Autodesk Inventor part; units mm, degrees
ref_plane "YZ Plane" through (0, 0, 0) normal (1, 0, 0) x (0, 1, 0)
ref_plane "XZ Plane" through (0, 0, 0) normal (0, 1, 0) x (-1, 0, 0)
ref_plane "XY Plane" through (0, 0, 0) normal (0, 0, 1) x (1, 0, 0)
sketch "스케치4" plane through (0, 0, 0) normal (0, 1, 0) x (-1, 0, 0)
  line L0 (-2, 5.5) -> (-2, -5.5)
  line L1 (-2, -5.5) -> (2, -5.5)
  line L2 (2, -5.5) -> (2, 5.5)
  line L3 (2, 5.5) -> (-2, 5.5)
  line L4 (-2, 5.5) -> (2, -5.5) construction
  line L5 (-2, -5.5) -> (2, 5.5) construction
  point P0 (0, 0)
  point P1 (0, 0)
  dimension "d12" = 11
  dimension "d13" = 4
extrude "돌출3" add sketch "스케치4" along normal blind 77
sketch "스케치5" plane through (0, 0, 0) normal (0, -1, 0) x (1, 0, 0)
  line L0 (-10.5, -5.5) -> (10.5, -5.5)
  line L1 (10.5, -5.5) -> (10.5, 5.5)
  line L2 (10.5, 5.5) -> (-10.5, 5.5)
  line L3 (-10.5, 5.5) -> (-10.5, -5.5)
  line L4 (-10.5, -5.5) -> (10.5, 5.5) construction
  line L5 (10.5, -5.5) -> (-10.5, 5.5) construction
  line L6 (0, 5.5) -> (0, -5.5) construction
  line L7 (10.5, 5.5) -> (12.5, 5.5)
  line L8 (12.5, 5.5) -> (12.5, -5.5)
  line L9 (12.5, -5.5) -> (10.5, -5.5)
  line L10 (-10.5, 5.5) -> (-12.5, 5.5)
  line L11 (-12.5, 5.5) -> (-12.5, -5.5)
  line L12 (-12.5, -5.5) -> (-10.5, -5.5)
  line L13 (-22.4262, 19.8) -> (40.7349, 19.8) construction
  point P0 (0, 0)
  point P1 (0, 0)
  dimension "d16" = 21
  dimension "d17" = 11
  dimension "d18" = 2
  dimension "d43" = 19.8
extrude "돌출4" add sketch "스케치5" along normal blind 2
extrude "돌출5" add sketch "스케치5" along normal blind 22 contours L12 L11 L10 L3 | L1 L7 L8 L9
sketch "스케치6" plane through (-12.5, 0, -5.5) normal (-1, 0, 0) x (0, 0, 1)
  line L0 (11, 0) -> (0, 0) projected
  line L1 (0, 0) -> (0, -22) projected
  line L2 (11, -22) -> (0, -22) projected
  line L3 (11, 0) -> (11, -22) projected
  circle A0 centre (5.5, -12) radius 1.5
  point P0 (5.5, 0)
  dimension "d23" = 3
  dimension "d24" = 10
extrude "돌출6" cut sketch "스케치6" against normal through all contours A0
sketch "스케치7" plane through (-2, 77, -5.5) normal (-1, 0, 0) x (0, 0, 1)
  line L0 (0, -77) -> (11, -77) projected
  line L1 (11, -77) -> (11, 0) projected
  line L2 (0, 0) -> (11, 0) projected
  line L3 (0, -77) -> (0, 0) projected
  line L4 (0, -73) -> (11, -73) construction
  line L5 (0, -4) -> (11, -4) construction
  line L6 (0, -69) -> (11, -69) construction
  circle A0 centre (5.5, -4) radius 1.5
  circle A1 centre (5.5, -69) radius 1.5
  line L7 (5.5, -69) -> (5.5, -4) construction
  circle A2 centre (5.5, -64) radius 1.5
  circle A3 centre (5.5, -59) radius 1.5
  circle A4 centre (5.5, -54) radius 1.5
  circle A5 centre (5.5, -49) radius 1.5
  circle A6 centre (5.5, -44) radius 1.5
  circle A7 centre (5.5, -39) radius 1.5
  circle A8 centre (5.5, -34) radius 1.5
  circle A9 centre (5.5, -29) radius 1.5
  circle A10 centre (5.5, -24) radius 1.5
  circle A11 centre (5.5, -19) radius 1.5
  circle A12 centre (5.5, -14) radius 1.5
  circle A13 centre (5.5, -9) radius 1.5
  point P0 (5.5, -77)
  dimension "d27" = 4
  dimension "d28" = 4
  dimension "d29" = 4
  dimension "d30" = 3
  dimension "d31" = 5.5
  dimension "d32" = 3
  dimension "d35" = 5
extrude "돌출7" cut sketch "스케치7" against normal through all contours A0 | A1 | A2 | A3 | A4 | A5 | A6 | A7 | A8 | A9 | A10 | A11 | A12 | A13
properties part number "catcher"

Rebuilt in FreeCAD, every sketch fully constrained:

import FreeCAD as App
import Part
import Sketcher
from FreeCAD import Vector


def add_polygon(sketch, points):
    """Adds a closed chain of lines whose ends are joined by coincident constraints."""
    first, n = sketch.GeometryCount, len(points)
    for a, b in zip(points, points[1:] + points[:1]):
        sketch.addGeometry(Part.LineSegment(App.Vector(*a, 0), App.Vector(*b, 0)), False)
    for i in range(n):
        sketch.addConstraint(Sketcher.Constraint("Coincident", first + i, 2, first + (i + 1) % n, 1))

doc = App.newDocument("Part")
body = doc.addObject("PartDesign::Body", "Body")

# Sketch on XZ plane
sketch1 = body.newObject("Sketcher::SketchObject", "Sketch")
sketch1.AttachmentSupport = (doc.getObject("XZ_Plane"), [""])
sketch1.MapMode = "FlatFace"
add_polygon(sketch1, [(-2, 5.5), (2, 5.5), (2, -5.5), (-2, -5.5)])  # lines 0-3
sketch1.addConstraint([
    Sketcher.Constraint("Horizontal", 0),
    Sketcher.Constraint("Vertical", 1),
    Sketcher.Constraint("Horizontal", 2),
    Sketcher.Constraint("Vertical", 3),
    Sketcher.Constraint("Symmetric", 0, 2, 2, 2, -1, 1),
    Sketcher.Constraint("DistanceX", 0, 1, 0, 2, 4.0),
    Sketcher.Constraint("DistanceY", 1, 2, 1, 1, 11.0),
])
pad1 = body.newObject("PartDesign::Pad", "Pad")
pad1.Profile = sketch1
pad1.Length = 77
pad1.Reversed = True

# Sketch on XZ plane
sketch2 = body.newObject("Sketcher::SketchObject", "Sketch001")
sketch2.AttachmentSupport = (doc.getObject("XZ_Plane"), [""])
sketch2.MapMode = "FlatFace"
add_polygon(sketch2, [(-12, 6), (-12, -6), (12, -6), (12, 6)])  # lines 0-3
sketch2.addConstraint([
    Sketcher.Constraint("Vertical", 0),
    Sketcher.Constraint("Horizontal", 1),
    Sketcher.Constraint("Vertical", 2),
    Sketcher.Constraint("Horizontal", 3),
    Sketcher.Constraint("Symmetric", 0, 2, 2, 2, -1, 1),
    Sketcher.Constraint("DistanceY", 0, 2, 0, 1, 11.0),
    Sketcher.Constraint("DistanceX", 1, 1, 1, 2, 25.0),
])
pad2 = body.newObject("PartDesign::Pad", "Pad001")
pad2.Profile = sketch2
pad2.Length = 2

# Sketch on XZ plane
sketch3 = body.newObject("Sketcher::SketchObject", "Sketch002")
sketch3.AttachmentSupport = (doc.getObject("XZ_Plane"), [""])
sketch3.MapMode = "FlatFace"
add_polygon(sketch3, [(-12.5, -5.5), (-10.5, -5.5), (-10.5, 5.5), (-12.5, 5.5)])  # lines 0-3
add_polygon(sketch3, [(10.5, 5.5), (10.5, -5.5), (12.5, -5.5), (12.5, 5.5)])  # lines 4-7
sketch3.addConstraint([
    Sketcher.Constraint("Horizontal", 0),
    Sketcher.Constraint("Vertical", 1),
    Sketcher.Constraint("Horizontal", 2),
    Sketcher.Constraint("Vertical", 3),
    Sketcher.Constraint("Vertical", 4),
    Sketcher.Constraint("Horizontal", 5),
    Sketcher.Constraint("Vertical", 6),
    Sketcher.Constraint("Horizontal", 7),
    Sketcher.Constraint("Symmetric", 1, 2, 4, 2, -1, 1),
    Sketcher.Constraint("Symmetric", 3, 2, 6, 2, -1, 1),
    Sketcher.Constraint("Horizontal", 3, 2, 4, 2),
    Sketcher.Constraint("DistanceX", 0, 1, 0, 2, 2.0),
    Sketcher.Constraint("DistanceY", 1, 1, 1, 2, 11.0),
    Sketcher.Constraint("DistanceX", 0, 2, 4, 2, 21.0),
])
pad3 = body.newObject("PartDesign::Pad", "Pad002")
pad3.Profile = sketch3
pad3.Length = 22

# Sketch on YZ plane
sketch4 = body.newObject("Sketcher::SketchObject", "Sketch003")
sketch4.AttachmentSupport = (doc.getObject("YZ_Plane"), [""])
sketch4.MapMode = "FlatFace"
sketch4.AttachmentOffset = App.Placement(Vector(0, 0, -12.5), App.Rotation())
sketch4.addGeometry(Part.Circle(Vector(-12, 0, 0), Vector(0, 0, 1), 1.5), False)
sketch4.addConstraint([
    Sketcher.Constraint("PointOnObject", 0, 3, -1),
    Sketcher.Constraint("Diameter", 0, 3.0),
    Sketcher.Constraint("DistanceX", 0, 3, -1, 1, 12.0),
])
pocket1 = body.newObject("PartDesign::Pocket", "Pocket")
pocket1.Profile = sketch4
pocket1.Type = "ThroughAll"
pocket1.Reversed = True

# Sketch on YZ plane
sketch5 = body.newObject("Sketcher::SketchObject", "Sketch004")
sketch5.AttachmentSupport = (doc.getObject("YZ_Plane"), [""])
sketch5.MapMode = "FlatFace"
sketch5.AttachmentOffset = App.Placement(Vector(0, 0, -2), App.Rotation())
sketch5.addGeometry([
    Part.Circle(Vector(73, 0, 0), Vector(0, 0, 1), 1.5),  # 0
    Part.Circle(Vector(8, 0, 0), Vector(0, 0, 1), 1.5),  # 1
    Part.Circle(Vector(13, 0, 0), Vector(0, 0, 1), 1.5),  # 2
    Part.Circle(Vector(18, 0, 0), Vector(0, 0, 1), 1.5),  # 3
    Part.Circle(Vector(23, 0, 0), Vector(0, 0, 1), 1.5),  # 4
    Part.Circle(Vector(28, 0, 0), Vector(0, 0, 1), 1.5),  # 5
    Part.Circle(Vector(33, 0, 0), Vector(0, 0, 1), 1.5),  # 6
    Part.Circle(Vector(38, 0, 0), Vector(0, 0, 1), 1.5),  # 7
    Part.Circle(Vector(43, 0, 0), Vector(0, 0, 1), 1.5),  # 8
    Part.Circle(Vector(48, 0, 0), Vector(0, 0, 1), 1.5),  # 9
    Part.Circle(Vector(53, 0, 0), Vector(0, 0, 1), 1.5),  # 10
    Part.Circle(Vector(58, 0, 0), Vector(0, 0, 1), 1.5),  # 11
    Part.Circle(Vector(63, 0, 0), Vector(0, 0, 1), 1.5),  # 12
    Part.Circle(Vector(68, 0, 0), Vector(0, 0, 1), 1.5),  # 13
], False)
sketch5.addConstraint([
    Sketcher.Constraint("Equal", 0, 1),
    Sketcher.Constraint("Equal", 1, 2),
    Sketcher.Constraint("Equal", 2, 3),
    Sketcher.Constraint("Equal", 3, 4),
    Sketcher.Constraint("Equal", 4, 5),
    Sketcher.Constraint("Equal", 5, 6),
    Sketcher.Constraint("Equal", 6, 7),
    Sketcher.Constraint("Equal", 7, 8),
    Sketcher.Constraint("Equal", 8, 9),
    Sketcher.Constraint("Equal", 9, 10),
    Sketcher.Constraint("Equal", 10, 11),
    Sketcher.Constraint("Equal", 11, 12),
    Sketcher.Constraint("Equal", 12, 13),
    Sketcher.Constraint("PointOnObject", 0, 3, -1),
    Sketcher.Constraint("PointOnObject", 1, 3, -1),
    Sketcher.Constraint("PointOnObject", 2, 3, -1),
    Sketcher.Constraint("PointOnObject", 3, 3, -1),
    Sketcher.Constraint("PointOnObject", 4, 3, -1),
    Sketcher.Constraint("PointOnObject", 5, 3, -1),
    Sketcher.Constraint("PointOnObject", 6, 3, -1),
    Sketcher.Constraint("PointOnObject", 7, 3, -1),
    Sketcher.Constraint("PointOnObject", 8, 3, -1),
    Sketcher.Constraint("PointOnObject", 9, 3, -1),
    Sketcher.Constraint("PointOnObject", 10, 3, -1),
    Sketcher.Constraint("PointOnObject", 11, 3, -1),
    Sketcher.Constraint("PointOnObject", 12, 3, -1),
    Sketcher.Constraint("PointOnObject", 13, 3, -1),
    Sketcher.Constraint("Diameter", 0, 3.0),
    Sketcher.Constraint("DistanceX", 1, 3, 2, 3, 5.0),
    Sketcher.Constraint("DistanceX", 2, 3, 3, 3, 5.0),
    Sketcher.Constraint("DistanceX", 3, 3, 4, 3, 5.0),
    Sketcher.Constraint("DistanceX", 4, 3, 5, 3, 5.0),
    Sketcher.Constraint("DistanceX", 5, 3, 6, 3, 5.0),
    Sketcher.Constraint("DistanceX", 6, 3, 7, 3, 5.0),
    Sketcher.Constraint("DistanceX", 7, 3, 8, 3, 5.0),
    Sketcher.Constraint("DistanceX", 8, 3, 9, 3, 5.0),
    Sketcher.Constraint("DistanceX", 9, 3, 10, 3, 5.0),
    Sketcher.Constraint("DistanceX", 10, 3, 11, 3, 5.0),
    Sketcher.Constraint("DistanceX", 11, 3, 12, 3, 5.0),
    Sketcher.Constraint("DistanceX", 12, 3, 0, 3, 10.0),
    Sketcher.Constraint("DistanceX", 13, 3, 0, 3, 5.0),
    Sketcher.Constraint("DistanceX", -1, 1, 0, 3, 73.0),
])
pocket2 = body.newObject("PartDesign::Pocket", "Pocket001")
pocket2.Profile = sketch5
pocket2.Type = "ThroughAll"
pocket2.Reversed = True

doc.recompute()
